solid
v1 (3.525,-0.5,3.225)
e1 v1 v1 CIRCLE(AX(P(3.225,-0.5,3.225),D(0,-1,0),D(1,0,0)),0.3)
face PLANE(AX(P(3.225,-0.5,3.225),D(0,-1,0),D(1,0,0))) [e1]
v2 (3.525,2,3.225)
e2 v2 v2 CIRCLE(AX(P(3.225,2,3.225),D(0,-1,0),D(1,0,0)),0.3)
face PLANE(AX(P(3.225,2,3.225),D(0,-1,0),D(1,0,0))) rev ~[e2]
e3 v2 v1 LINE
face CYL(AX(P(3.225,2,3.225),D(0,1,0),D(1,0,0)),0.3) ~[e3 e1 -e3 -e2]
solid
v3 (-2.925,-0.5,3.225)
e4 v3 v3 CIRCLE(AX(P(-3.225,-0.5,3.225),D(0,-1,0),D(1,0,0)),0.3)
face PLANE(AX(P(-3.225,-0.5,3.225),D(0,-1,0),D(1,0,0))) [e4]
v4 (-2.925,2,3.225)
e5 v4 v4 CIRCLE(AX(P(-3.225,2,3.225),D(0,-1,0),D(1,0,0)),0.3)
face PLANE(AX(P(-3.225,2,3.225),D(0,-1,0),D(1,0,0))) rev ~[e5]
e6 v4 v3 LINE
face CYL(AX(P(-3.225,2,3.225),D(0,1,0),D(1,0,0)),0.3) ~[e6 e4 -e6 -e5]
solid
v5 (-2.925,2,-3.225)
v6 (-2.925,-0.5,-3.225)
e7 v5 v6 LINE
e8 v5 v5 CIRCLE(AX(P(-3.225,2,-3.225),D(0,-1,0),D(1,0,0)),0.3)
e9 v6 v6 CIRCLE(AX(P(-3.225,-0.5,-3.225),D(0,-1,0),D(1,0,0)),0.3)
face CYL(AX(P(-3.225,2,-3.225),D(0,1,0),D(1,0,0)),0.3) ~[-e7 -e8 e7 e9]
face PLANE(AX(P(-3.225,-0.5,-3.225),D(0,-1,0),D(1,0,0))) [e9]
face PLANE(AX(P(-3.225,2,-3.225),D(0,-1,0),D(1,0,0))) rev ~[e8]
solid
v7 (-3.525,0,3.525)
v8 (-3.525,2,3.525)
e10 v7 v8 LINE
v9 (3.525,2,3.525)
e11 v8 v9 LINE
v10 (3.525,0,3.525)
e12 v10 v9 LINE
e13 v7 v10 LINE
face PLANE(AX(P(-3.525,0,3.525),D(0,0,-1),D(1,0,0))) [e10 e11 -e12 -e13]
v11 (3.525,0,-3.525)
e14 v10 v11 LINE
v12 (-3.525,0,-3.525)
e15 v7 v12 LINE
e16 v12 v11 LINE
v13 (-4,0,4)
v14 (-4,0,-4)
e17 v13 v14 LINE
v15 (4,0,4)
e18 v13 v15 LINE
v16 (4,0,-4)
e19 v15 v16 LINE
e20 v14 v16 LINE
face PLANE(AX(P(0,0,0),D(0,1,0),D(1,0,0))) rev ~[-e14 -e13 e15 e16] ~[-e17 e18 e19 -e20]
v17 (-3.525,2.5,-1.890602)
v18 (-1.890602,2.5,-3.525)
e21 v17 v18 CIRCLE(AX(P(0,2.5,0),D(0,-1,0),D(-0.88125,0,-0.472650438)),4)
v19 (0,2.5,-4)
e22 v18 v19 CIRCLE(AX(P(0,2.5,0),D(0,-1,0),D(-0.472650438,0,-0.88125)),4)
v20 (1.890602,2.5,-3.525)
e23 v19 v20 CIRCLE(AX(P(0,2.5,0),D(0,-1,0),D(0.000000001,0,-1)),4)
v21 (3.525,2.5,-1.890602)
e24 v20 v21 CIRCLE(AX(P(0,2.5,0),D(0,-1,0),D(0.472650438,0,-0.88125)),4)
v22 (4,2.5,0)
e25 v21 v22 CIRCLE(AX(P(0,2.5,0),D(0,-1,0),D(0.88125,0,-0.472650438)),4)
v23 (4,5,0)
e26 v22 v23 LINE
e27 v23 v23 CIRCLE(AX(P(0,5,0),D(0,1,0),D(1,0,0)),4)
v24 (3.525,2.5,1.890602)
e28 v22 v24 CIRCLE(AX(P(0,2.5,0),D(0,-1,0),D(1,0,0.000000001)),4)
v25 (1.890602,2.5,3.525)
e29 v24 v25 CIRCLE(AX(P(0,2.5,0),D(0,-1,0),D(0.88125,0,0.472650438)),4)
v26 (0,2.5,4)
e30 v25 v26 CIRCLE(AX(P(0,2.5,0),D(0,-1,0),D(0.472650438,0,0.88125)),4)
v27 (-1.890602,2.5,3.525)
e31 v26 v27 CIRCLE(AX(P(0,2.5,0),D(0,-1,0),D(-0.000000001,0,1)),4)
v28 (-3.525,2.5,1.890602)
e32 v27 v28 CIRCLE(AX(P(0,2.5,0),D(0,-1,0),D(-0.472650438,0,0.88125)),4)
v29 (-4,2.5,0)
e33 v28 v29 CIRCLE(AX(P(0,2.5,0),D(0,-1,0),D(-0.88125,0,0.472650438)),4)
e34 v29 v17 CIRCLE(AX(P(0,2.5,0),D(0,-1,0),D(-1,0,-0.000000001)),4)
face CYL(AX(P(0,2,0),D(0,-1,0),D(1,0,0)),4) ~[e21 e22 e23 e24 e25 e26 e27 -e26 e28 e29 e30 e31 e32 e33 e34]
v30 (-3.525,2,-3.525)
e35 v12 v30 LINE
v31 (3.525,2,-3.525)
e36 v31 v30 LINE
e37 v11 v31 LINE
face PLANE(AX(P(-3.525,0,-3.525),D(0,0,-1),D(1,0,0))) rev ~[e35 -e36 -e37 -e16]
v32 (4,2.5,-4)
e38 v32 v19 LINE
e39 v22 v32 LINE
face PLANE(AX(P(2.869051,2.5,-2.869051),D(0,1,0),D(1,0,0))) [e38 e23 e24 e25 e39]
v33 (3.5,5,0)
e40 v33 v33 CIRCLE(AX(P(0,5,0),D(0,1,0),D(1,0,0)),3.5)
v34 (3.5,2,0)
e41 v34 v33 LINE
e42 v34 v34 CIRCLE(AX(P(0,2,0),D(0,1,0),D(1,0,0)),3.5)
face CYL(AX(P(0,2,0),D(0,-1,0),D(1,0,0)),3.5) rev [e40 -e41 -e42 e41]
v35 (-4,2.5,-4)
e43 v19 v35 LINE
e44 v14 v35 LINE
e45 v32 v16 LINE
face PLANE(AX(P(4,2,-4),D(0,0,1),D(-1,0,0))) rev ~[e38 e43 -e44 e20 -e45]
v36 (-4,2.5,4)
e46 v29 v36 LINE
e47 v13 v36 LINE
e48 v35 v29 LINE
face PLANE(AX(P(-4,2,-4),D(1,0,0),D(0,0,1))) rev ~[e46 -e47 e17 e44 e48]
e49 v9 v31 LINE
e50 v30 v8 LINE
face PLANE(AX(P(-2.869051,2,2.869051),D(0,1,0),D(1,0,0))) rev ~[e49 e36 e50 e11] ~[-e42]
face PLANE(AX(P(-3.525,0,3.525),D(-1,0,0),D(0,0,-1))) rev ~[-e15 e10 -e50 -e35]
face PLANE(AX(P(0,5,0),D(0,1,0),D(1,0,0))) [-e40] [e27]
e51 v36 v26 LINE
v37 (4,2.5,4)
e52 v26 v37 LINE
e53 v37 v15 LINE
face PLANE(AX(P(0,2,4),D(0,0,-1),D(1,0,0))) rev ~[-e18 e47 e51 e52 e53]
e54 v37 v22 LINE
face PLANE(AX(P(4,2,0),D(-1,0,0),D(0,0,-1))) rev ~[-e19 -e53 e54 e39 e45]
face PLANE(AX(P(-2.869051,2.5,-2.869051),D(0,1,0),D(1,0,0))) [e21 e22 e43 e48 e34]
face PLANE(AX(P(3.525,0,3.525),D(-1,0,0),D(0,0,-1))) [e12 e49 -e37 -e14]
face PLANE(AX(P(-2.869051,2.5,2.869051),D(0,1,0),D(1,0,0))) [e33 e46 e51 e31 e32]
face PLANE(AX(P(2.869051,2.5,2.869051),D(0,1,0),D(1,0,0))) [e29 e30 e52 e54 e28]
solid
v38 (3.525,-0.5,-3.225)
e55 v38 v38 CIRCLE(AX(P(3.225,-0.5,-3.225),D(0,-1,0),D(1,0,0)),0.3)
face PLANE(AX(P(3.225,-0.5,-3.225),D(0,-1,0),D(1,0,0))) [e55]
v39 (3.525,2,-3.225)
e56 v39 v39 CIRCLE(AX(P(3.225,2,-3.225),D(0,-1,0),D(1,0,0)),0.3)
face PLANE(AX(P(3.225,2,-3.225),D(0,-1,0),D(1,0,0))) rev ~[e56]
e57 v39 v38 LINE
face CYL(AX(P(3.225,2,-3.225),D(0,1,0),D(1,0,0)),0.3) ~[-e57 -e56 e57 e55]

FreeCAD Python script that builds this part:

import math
import FreeCAD as App
import Part
import Sketcher
Q = App.Units.Quantity

doc = App.newDocument("Part")
body = doc.addObject("PartDesign::Body", "Body")

sketch1 = body.newObject("Sketcher::SketchObject", "Sketch")
sketch1.AttachmentSupport = (doc.getObject("XZ_Plane"), [""])
sketch1.MapMode = "FlatFace"
sketch1.addGeometry([
    Part.LineSegment(App.Vector(-4, -4, 0), App.Vector(-4, 4, 0)),
    Part.LineSegment(App.Vector(-4, 4, 0), App.Vector(4, 4, 0)),
    Part.LineSegment(App.Vector(4, 4, 0), App.Vector(4, -4, 0)),
    Part.LineSegment(App.Vector(4, -4, 0), App.Vector(-4, -4, 0)),
    Part.LineSegment(App.Vector(4, 4, 0), App.Vector(-4, 4, 0)),
    Part.LineSegment(App.Vector(-4, 4, 0), App.Vector(-4, -4, 0)),
    Part.LineSegment(App.Vector(-4, -4, 0), App.Vector(4, -4, 0)),
    Part.LineSegment(App.Vector(4, -4, 0), App.Vector(4, 4, 0)),
], False)
sketch1.addConstraint([
    Sketcher.Constraint("Coincident", 0, 2, 1, 1),
    Sketcher.Constraint("Coincident", 1, 2, 2, 1),
    Sketcher.Constraint("Coincident", 2, 2, 3, 1),
    Sketcher.Constraint("Coincident", 3, 2, 0, 1),
    Sketcher.Constraint("Coincident", 4, 2, 5, 1),
    Sketcher.Constraint("Coincident", 5, 2, 6, 1),
    Sketcher.Constraint("Coincident", 6, 2, 7, 1),
    Sketcher.Constraint("Coincident", 7, 2, 4, 1),
    Sketcher.Constraint("Vertical", 0),
    Sketcher.Constraint("Horizontal", 1),
    Sketcher.Constraint("Vertical", 2),
    Sketcher.Constraint("Horizontal", 3),
    Sketcher.Constraint("Horizontal", 4),
    Sketcher.Constraint("Vertical", 5),
    Sketcher.Constraint("Horizontal", 6),
    Sketcher.Constraint("Vertical", 7),
    Sketcher.Constraint("Symmetric", 0, 2, 2, 2, -1, 1),
    Sketcher.Constraint("Symmetric", 4, 2, 6, 2, -1, 1),
    Sketcher.Constraint("Equal", 3, 0),
    Sketcher.Constraint("Equal", 6, 5),
    Sketcher.Constraint("DistanceX", 1, 1, 1, 2, Q("8 mm")),
    Sketcher.Constraint("DistanceX", 4, 2, 4, 1, Q("7.05 mm")),
])
pad1 = body.newObject("PartDesign::Pad", "Pad")
pad1.Profile = sketch1
pad1.Length = 2
pad1.Reversed = True

sketch2 = body.newObject("Sketcher::SketchObject", "Sketch001")
sketch2.AttachmentSupport = (doc.getObject("XZ_Plane"), [""])
sketch2.MapMode = "FlatFace"
sketch2.AttachmentOffset = App.Placement(App.Vector(0, 0, -2), App.Rotation())
sketch2.addGeometry([
    Part.Circle(App.Vector(0, 0, 0), App.Vector(0, 0, 1), 4),
    Part.Circle(App.Vector(0, 0, 0), App.Vector(0, 0, 1), 3.5),
], False)
sketch2.addConstraint([
    Sketcher.Constraint("Coincident", 0, 3, -1, 1),
    Sketcher.Constraint("Coincident", 1, 3, -1, 1),
    Sketcher.Constraint("Diameter", 0, Q("8 mm")),
    Sketcher.Constraint("Diameter", 1, Q("7 mm")),
])
pad2 = body.newObject("PartDesign::Pad", "Pad001")
pad2.Profile = sketch2
pad2.Length = 3
pad2.Reversed = True

sketch3 = body.newObject("Sketcher::SketchObject", "Sketch002")
sketch3.AttachmentSupport = (doc.getObject("XZ_Plane"), [""])
sketch3.MapMode = "FlatFace"
sketch3.AttachmentOffset = App.Placement(App.Vector(0, 0, -2), App.Rotation())
sketch3.addGeometry([
    Part.LineSegment(App.Vector(4, -4, 0), App.Vector(0, -4, 0)),
    Part.ArcOfCircle(Part.Circle(App.Vector(0, 0, 0), App.Vector(0, 0, 1), 4), math.radians(-90), math.radians(-62)),
    Part.ArcOfCircle(Part.Circle(App.Vector(0, 0, 0), App.Vector(0, 0, 1), 4), math.radians(-62), math.radians(-28)),
    Part.ArcOfCircle(Part.Circle(App.Vector(0, 0, 0), App.Vector(0, 0, 1), 4), math.radians(-28), math.radians(0)),
    Part.LineSegment(App.Vector(4, 0, 0), App.Vector(4, -4, 0)),
    Part.LineSegment(App.Vector(4, 4, 0), App.Vector(4, 0, 0)),
    Part.ArcOfCircle(Part.Circle(App.Vector(0, 0, 0), App.Vector(0, 0, 1), 4), math.radians(0), math.radians(28)),
    Part.ArcOfCircle(Part.Circle(App.Vector(0, 0, 0), App.Vector(0, 0, 1), 4), math.radians(28), math.radians(62)),
    Part.ArcOfCircle(Part.Circle(App.Vector(0, 0, 0), App.Vector(0, 0, 1), 4), math.radians(62), math.radians(90)),
    Part.LineSegment(App.Vector(0, 4, 0), App.Vector(4, 4, 0)),
    Part.ArcOfCircle(Part.Circle(App.Vector(0, 0, 0), App.Vector(0, 0, 1), 4), math.radians(152), math.radians(180)),
    Part.LineSegment(App.Vector(-4, 0, 0), App.Vector(-4, 4, 0)),
    Part.LineSegment(App.Vector(-4, 4, 0), App.Vector(0, 4, 0)),
    Part.ArcOfCircle(Part.Circle(App.Vector(0, 0, 0), App.Vector(0, 0, 1), 4), math.radians(90), math.radians(118)),
    Part.ArcOfCircle(Part.Circle(App.Vector(0, 0, 0), App.Vector(0, 0, 1), 4), math.radians(118), math.radians(152)),
    Part.ArcOfCircle(Part.Circle(App.Vector(0, 0, 0), App.Vector(0, 0, 1), 4), math.radians(-118), math.radians(-90)),
    Part.LineSegment(App.Vector(0, -4, 0), App.Vector(-4, -4, 0)),
    Part.LineSegment(App.Vector(-4, -4, 0), App.Vector(-4, 0, 0)),
    Part.ArcOfCircle(Part.Circle(App.Vector(0, 0, 0), App.Vector(0, 0, 1), 4), math.radians(-180), math.radians(-152)),
    Part.ArcOfCircle(Part.Circle(App.Vector(0, 0, 0), App.Vector(0, 0, 1), 4), math.radians(-152), math.radians(-118)),
], False)
sketch3.addConstraint([
    Sketcher.Constraint("Tangent", 0, 2, 1, 1),
    Sketcher.Constraint("Tangent", 1, 2, 2, 1),
    Sketcher.Constraint("Tangent", 2, 2, 3, 1),
    Sketcher.Constraint("Tangent", 3, 2, 4, 1),
    Sketcher.Constraint("Coincident", 4, 2, 0, 1),
    Sketcher.Constraint("Tangent", 5, 2, 6, 1),
    Sketcher.Constraint("Tangent", 6, 2, 7, 1),
    Sketcher.Constraint("Tangent", 7, 2, 8, 1),
    Sketcher.Constraint("Tangent", 8, 2, 9, 1),
    Sketcher.Constraint("Coincident", 9, 2, 5, 1),
    Sketcher.Constraint("Tangent", 10, 2, 11, 1),
    Sketcher.Constraint("Coincident", 11, 2, 12, 1),
    Sketcher.Constraint("Tangent", 12, 2, 13, 1),
    Sketcher.Constraint("Tangent", 13, 2, 14, 1),
    Sketcher.Constraint("Tangent", 14, 2, 10, 1),
    Sketcher.Constraint("Tangent", 15, 2, 16, 1),
    Sketcher.Constraint("Coincident", 16, 2, 17, 1),
    Sketcher.Constraint("Tangent", 17, 2, 18, 1),
    Sketcher.Constraint("Tangent", 18, 2, 19, 1),
    Sketcher.Constraint("Tangent", 19, 2, 15, 1),
    Sketcher.Constraint("Horizontal", 0),
    Sketcher.Constraint("Vertical", 4),
    Sketcher.Constraint("Vertical", 5),
    Sketcher.Constraint("Horizontal", 9),
    Sketcher.Constraint("Vertical", 11),
    Sketcher.Constraint("Horizontal", 12),
    Sketcher.Constraint("Horizontal", 16),
    Sketcher.Constraint("Vertical", 17),
    Sketcher.Constraint("Coincident", 1, 3, -1, 1),
    Sketcher.Constraint("Coincident", 3, 3, -1, 1),
    Sketcher.Constraint("Coincident", 6, 3, -1, 1),
    Sketcher.Constraint("Coincident", 8, 3, -1, 1),
    Sketcher.Constraint("Coincident", 10, 3, -1, 1),
    Sketcher.Constraint("Coincident", 13, 3, -1, 1),
    Sketcher.Constraint("Coincident", 15, 3, -1, 1),
    Sketcher.Constraint("Coincident", 18, 3, -1, 1),
    Sketcher.Constraint("Equal", 3, 6),
    Sketcher.Constraint("Equal", 8, 10),
    Sketcher.Constraint("Equal", 14, 15),
    Sketcher.Constraint("Horizontal", 7, 2, 13, 2),
    Sketcher.Constraint("Horizontal", 6, 2, 14, 2),
    Sketcher.Constraint("Horizontal", 2, 2, 18, 2),
    Sketcher.Constraint("Horizontal", 1, 2, 19, 2),
    Sketcher.Constraint("Vertical", 2, 2, 6, 2),
    Sketcher.Constraint("Vertical", 1, 2, 7, 2),
    Sketcher.Constraint("Radius", 1, Q("4 mm")),
    Sketcher.Constraint("DistanceY", 1, 2, -1, 1, Q("3.525 mm")),
    Sketcher.Constraint("DistanceX", -1, 1, 2, 2, Q("3.525 mm")),
])
pad3 = body.newObject("PartDesign::Pad", "Pad002")
pad3.Profile = sketch3
pad3.Length = 0.5
pad3.Reversed = True
body2 = doc.addObject("PartDesign::Body", "Body001")

sketch4 = body2.newObject("Sketcher::SketchObject", "Sketch003")
sketch4.AttachmentSupport = (doc.getObject("XZ_Plane001"), [""])
sketch4.MapMode = "FlatFace"
sketch4.AttachmentOffset = App.Placement(App.Vector(0, 0, -2), App.Rotation())
sketch4.addGeometry(Part.Circle(App.Vector(3.23, 3.23, 0), App.Vector(0, 0, 1), 0.3), False)
sketch4.addConstraint([
    Sketcher.Constraint("Diameter", 0, Q("0.6 mm")),
    Sketcher.Constraint("DistanceX", -1, 1, 0, 3, Q("3.225 mm")),
    Sketcher.Constraint("DistanceY", -1, 1, 0, 3, Q("3.225 mm")),
])
pad4 = body2.newObject("PartDesign::Pad", "Pad003")
pad4.Profile = sketch4
pad4.Length = 2.5
body3 = doc.addObject("PartDesign::Body", "Body002")

sketch5 = body3.newObject("Sketcher::SketchObject", "Sketch004")
sketch5.AttachmentSupport = (doc.getObject("XZ_Plane002"), [""])
sketch5.MapMode = "FlatFace"
sketch5.AttachmentOffset = App.Placement(App.Vector(0, 0, -2), App.Rotation())
sketch5.addGeometry(Part.Circle(App.Vector(3.23, -3.23, 0), App.Vector(0, 0, 1), 0.3), False)
sketch5.addConstraint([
    Sketcher.Constraint("Diameter", 0, Q("0.6 mm")),
    Sketcher.Constraint("DistanceX", -1, 1, 0, 3, Q("3.225 mm")),
    Sketcher.Constraint("DistanceY", 0, 3, -1, 1, Q("3.225 mm")),
])
pad5 = body3.newObject("PartDesign::Pad", "Pad004")
pad5.Profile = sketch5
pad5.Length = 2.5
body4 = doc.addObject("PartDesign::Body", "Body003")

sketch6 = body4.newObject("Sketcher::SketchObject", "Sketch005")
sketch6.AttachmentSupport = (doc.getObject("XZ_Plane003"), [""])
sketch6.MapMode = "FlatFace"
sketch6.AttachmentOffset = App.Placement(App.Vector(0, 0, -2), App.Rotation())
sketch6.addGeometry(Part.Circle(App.Vector(-3.23, -3.23, 0), App.Vector(0, 0, 1), 0.3), False)
sketch6.addConstraint([
    Sketcher.Constraint("Diameter", 0, Q("0.6 mm")),
    Sketcher.Constraint("DistanceX", 0, 3, -1, 1, Q("3.225 mm")),
    Sketcher.Constraint("DistanceY", 0, 3, -1, 1, Q("3.225 mm")),
])
pad6 = body4.newObject("PartDesign::Pad", "Pad005")
pad6.Profile = sketch6
pad6.Length = 2.5
body5 = doc.addObject("PartDesign::Body", "Body004")

sketch7 = body5.newObject("Sketcher::SketchObject", "Sketch006")
sketch7.AttachmentSupport = (doc.getObject("XZ_Plane004"), [""])
sketch7.MapMode = "FlatFace"
sketch7.AttachmentOffset = App.Placement(App.Vector(0, 0, -2), App.Rotation())
sketch7.addGeometry(Part.Circle(App.Vector(-3.23, 3.23, 0), App.Vector(0, 0, 1), 0.3), False)
sketch7.addConstraint([
    Sketcher.Constraint("Diameter", 0, Q("0.6 mm")),
    Sketcher.Constraint("DistanceX", 0, 3, -1, 1, Q("3.225 mm")),
    Sketcher.Constraint("DistanceY", -1, 1, 0, 3, Q("3.225 mm")),
])
pad7 = body5.newObject("PartDesign::Pad", "Pad006")
pad7.Profile = sketch7
pad7.Length = 2.5

doc.recompute()
